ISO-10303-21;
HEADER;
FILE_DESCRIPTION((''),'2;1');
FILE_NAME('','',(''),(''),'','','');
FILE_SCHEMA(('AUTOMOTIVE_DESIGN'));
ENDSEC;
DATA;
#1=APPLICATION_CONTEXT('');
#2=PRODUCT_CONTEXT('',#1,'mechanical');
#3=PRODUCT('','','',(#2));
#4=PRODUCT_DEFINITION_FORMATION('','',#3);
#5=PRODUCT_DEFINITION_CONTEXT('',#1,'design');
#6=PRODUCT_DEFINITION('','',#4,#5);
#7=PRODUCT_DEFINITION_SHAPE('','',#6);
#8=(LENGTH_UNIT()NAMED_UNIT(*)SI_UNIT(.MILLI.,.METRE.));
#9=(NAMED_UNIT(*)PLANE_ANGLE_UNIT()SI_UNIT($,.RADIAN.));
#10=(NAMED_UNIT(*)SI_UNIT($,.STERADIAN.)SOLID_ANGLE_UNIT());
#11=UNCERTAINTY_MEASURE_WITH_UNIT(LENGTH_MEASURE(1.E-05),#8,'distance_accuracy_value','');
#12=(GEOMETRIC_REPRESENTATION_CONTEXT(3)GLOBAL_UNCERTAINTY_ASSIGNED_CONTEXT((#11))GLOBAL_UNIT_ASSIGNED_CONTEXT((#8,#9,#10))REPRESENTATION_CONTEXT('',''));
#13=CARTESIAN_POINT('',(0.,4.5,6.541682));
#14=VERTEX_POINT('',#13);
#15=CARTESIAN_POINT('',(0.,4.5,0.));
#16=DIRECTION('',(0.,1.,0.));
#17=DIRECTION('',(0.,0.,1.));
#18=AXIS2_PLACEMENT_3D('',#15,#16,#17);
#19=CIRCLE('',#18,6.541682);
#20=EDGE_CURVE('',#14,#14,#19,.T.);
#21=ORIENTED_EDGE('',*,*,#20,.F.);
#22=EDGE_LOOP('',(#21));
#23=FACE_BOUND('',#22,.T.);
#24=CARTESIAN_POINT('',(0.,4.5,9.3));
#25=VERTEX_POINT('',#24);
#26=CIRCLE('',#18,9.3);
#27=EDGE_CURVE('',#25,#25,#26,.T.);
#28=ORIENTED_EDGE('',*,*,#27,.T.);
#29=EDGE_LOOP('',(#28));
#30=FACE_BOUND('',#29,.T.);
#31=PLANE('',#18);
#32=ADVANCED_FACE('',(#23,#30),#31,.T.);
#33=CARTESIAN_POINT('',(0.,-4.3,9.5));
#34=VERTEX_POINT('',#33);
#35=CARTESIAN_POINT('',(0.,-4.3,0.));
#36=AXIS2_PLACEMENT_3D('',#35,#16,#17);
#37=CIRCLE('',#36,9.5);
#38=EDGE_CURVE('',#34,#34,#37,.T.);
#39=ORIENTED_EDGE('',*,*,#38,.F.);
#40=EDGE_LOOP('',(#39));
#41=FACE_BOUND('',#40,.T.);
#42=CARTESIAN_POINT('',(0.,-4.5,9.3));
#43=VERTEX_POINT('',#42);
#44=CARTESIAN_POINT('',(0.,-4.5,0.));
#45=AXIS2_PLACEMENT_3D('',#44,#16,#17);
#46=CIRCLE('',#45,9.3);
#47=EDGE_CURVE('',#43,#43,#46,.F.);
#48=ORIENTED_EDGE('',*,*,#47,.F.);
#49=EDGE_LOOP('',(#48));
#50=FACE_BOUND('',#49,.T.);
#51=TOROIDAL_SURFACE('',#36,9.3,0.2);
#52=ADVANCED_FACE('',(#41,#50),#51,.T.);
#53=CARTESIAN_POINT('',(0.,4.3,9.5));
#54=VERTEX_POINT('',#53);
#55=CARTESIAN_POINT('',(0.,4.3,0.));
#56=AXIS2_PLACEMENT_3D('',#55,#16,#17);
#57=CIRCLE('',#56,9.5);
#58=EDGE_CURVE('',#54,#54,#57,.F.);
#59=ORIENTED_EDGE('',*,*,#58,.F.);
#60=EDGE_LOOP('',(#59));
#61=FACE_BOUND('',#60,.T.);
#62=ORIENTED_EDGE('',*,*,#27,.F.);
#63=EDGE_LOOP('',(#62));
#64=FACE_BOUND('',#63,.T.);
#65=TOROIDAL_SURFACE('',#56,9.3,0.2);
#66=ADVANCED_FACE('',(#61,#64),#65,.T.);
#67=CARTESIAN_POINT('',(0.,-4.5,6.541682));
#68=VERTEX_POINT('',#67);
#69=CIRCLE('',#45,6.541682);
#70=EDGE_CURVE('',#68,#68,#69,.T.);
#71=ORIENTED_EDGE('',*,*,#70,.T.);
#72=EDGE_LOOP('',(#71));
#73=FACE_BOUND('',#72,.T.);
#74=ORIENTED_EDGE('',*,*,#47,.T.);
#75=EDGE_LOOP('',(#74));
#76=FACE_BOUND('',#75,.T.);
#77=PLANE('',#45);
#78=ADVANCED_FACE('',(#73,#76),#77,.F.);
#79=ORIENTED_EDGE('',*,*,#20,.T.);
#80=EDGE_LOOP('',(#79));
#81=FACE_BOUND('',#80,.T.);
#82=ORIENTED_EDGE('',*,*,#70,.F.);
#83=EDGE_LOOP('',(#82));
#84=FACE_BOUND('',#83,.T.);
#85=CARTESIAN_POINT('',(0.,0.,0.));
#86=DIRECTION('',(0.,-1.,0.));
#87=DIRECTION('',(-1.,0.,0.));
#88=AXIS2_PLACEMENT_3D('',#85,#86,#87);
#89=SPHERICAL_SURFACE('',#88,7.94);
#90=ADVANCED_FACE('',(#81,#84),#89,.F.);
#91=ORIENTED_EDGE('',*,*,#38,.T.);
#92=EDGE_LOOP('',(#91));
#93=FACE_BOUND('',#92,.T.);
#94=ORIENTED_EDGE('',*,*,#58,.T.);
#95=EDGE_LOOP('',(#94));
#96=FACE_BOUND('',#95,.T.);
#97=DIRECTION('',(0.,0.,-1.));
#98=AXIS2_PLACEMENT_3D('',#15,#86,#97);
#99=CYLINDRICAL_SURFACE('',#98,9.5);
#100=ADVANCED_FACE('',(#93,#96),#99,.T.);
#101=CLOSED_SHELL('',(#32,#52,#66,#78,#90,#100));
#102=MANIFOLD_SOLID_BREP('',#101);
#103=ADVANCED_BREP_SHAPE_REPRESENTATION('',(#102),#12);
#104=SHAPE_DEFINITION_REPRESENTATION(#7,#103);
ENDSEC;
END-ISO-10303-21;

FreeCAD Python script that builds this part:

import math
import FreeCAD as App
import Part
import Sketcher

V = App.Vector


def edges_at(feature, points):
    """Names of the edges that pass closest to the given points."""
    edges = feature.Shape.Edges
    near = lambda p: min(range(len(edges)), key=lambda i: edges[i].distToShape(Part.Vertex(*p))[0])
    return sorted({f"Edge{near(p) + 1}" for p in points})

doc = App.newDocument("Part")
body = doc.addObject("PartDesign::Body", "Body")

sketch1 = body.newObject("Sketcher::SketchObject", "Sketch")
sketch1.AttachmentSupport = (doc.getObject("XZ_Plane"), [""])
sketch1.MapMode = "FlatFace"
sketch1.addGeometry(Part.Circle(V(0, 0, 0), V(0, 0, 1), 9.5), False)
sketch1.addConstraint([
    Sketcher.Constraint("Coincident", 0, 3, -1, 1),
    Sketcher.Constraint("Diameter", 0, 19.0),
])
pad1 = body.newObject("PartDesign::Pad", "Pad")
pad1.Profile = sketch1
pad1.Length = 9
pad1.Midplane = True

sketch2 = body.newObject("Sketcher::SketchObject", "Sketch001")
sketch2.AttachmentSupport = (doc.getObject("XY_Plane"), [""])
sketch2.MapMode = "FlatFace"
sketch2.addGeometry([
    Part.LineSegment(V(0, 7.94, 0), V(0, -7.94, 0)),
    Part.ArcOfCircle(Part.Circle(V(0, 0, 0), V(0, 0, 1), 7.94), math.radians(-90), math.radians(90)),
], False)
sketch2.addConstraint([
    Sketcher.Constraint("Coincident", 0, 1, 1, 2),
    Sketcher.Constraint("Coincident", 1, 1, 0, 2),
    Sketcher.Constraint("Vertical", 0),
    Sketcher.Constraint("Coincident", 1, 3, -1, 1),
    Sketcher.Constraint("PointOnObject", 0, 1, -2),
    Sketcher.Constraint("Radius", 1, 7.94),
])
groove = body.newObject("PartDesign::Groove", "Groove")
groove.Profile = sketch2
groove.ReferenceAxis = (sketch2, ["V_Axis"])
groove.Angle = 360
doc.recompute()

fillet = body.newObject("PartDesign::Fillet", "Fillet")
fillet.Base = (groove, edges_at(groove, [(-9.5, -4.5, 0), (-9.5, 4.5, 0)]))
fillet.Radius = 0.2

doc.recompute()
